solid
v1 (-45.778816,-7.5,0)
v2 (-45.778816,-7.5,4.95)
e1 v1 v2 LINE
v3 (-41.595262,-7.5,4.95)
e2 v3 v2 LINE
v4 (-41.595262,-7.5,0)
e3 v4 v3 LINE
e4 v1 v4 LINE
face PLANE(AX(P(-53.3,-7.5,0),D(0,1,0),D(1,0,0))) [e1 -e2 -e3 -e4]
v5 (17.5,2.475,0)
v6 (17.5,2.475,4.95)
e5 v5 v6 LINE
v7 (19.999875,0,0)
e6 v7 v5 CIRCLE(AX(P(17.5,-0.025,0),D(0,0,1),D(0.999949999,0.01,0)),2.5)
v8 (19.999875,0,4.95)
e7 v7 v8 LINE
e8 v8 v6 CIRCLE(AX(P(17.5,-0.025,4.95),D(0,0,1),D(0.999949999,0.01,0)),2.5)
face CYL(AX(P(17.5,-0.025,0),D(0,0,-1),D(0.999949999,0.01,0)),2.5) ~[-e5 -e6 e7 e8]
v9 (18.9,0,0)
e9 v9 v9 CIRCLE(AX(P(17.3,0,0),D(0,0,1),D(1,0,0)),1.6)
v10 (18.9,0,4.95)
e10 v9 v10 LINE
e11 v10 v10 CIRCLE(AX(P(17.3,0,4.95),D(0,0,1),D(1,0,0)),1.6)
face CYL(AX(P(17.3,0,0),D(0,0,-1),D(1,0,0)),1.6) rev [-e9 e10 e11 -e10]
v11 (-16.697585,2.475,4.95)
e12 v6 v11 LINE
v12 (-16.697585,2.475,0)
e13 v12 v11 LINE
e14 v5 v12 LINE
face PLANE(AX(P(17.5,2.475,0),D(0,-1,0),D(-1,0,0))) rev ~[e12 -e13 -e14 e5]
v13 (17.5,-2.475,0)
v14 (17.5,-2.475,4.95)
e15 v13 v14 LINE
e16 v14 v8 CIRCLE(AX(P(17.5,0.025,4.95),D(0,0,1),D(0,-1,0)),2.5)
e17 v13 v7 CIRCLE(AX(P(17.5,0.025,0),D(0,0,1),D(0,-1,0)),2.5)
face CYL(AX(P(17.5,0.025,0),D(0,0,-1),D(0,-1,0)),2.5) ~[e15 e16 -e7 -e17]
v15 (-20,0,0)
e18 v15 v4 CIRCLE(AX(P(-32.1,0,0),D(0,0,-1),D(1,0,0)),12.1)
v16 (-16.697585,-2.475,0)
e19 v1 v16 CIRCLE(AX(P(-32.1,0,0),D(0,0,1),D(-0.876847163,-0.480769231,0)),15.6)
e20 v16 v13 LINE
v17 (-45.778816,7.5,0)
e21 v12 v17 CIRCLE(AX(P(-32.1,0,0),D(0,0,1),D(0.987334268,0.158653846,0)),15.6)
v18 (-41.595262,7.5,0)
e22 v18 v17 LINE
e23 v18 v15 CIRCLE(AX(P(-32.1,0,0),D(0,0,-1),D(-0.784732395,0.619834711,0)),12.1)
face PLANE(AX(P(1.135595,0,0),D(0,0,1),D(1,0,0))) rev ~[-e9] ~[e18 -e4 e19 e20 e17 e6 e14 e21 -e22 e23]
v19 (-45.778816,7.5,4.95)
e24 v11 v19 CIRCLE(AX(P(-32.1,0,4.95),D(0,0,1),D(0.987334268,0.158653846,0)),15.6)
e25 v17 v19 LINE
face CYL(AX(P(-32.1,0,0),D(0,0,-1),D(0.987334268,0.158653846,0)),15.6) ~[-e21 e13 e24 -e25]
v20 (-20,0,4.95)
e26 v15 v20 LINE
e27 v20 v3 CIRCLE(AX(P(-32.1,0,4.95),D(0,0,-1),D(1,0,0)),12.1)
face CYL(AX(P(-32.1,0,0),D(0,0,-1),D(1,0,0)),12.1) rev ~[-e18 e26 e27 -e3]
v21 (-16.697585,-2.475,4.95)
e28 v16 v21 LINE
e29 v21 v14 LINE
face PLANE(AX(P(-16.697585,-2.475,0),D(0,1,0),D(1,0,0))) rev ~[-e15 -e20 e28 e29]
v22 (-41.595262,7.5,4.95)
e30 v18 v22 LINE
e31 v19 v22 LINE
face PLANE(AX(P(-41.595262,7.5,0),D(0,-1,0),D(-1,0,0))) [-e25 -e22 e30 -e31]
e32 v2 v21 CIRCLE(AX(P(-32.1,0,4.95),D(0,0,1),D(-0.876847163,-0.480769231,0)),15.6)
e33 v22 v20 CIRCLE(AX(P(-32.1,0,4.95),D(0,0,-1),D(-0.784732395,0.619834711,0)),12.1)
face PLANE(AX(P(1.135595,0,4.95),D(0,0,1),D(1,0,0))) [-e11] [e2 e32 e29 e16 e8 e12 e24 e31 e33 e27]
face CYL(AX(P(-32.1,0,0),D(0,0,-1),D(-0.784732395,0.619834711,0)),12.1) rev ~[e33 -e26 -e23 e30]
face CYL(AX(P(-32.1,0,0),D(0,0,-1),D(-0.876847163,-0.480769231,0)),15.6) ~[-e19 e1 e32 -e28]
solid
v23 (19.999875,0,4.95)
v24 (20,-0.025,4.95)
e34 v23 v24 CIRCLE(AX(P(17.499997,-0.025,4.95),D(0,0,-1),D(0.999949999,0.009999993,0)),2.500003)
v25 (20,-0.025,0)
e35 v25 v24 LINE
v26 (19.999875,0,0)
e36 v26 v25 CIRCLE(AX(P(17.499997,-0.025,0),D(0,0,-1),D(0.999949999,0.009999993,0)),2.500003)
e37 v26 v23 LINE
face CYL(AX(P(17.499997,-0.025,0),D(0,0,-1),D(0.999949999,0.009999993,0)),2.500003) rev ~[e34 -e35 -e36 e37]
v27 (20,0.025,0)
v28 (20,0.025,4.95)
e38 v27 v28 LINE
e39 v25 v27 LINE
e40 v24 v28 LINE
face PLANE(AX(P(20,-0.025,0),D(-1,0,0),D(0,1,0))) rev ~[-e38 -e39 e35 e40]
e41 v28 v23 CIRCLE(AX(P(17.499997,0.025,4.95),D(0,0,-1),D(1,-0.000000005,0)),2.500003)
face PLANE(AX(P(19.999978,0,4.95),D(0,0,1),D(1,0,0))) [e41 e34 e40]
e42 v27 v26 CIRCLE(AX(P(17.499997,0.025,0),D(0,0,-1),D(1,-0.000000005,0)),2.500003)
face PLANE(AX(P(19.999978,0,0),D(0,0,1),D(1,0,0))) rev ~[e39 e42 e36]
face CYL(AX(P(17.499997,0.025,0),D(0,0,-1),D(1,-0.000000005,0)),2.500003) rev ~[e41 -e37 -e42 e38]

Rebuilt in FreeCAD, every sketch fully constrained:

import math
import FreeCAD as App
import Part
import Sketcher

doc = App.newDocument("Part")
params = doc.addObject("Spreadsheet::Sheet", "Params")
for row, (alias, value) in enumerate([
    ("sketch1_height", "0.05 mm"),
    ("pad1_length", "4.95 mm"),
    ("sketch2_diameter", "3.2 mm"),
    ("sketch2_radius", "2.5 mm"),
    ("sketch2_radius2", "15.6 mm"),
    ("sketch2_radius3", "12.1 mm"),
    ("sketch2_height", "15 mm"),
    ("pad2_length", "4.95 mm"),
    ("sketch3_radius", "12.1 mm"),
    ("sketch3_height", "15 mm"),
    ("pocket1_length", "22 mm"),
], start=1):
    params.set(f"A{row}", alias)
    params.set(f"B{row}", "=" + value)
    params.setAlias(f"B{row}", alias)

body = doc.addObject("PartDesign::Body", "Body")

# Sketch on XY plane
sketch1 = body.newObject("Sketcher::SketchObject", "Sketch")
sketch1.AttachmentSupport = (doc.getObject("XY_Plane"), [""])
sketch1.MapMode = "FlatFace"
sketch1.addGeometry(Part.ArcOfCircle(Part.Circle(App.Vector(17.5, 0.025, 0), App.Vector(0, 0, 1), 2.5), math.radians(-0.57), math.radians(0)), False)
sketch1.addGeometry(Part.ArcOfCircle(Part.Circle(App.Vector(17.5, -0.025, 0), App.Vector(0, 0, 1), 2.5), math.radians(0), math.radians(0.57)), False)
sketch1.addGeometry(Part.LineSegment(App.Vector(20, -0.025, 0), App.Vector(20, 0.025, 0)), False)
sketch1.addConstraint(Sketcher.Constraint("Coincident", 0, 1, 1, 2))
sketch1.addConstraint(Sketcher.Constraint("Tangent", 1, 1, 2, 1))
sketch1.addConstraint(Sketcher.Constraint("Tangent", 2, 2, 0, 2))
sketch1.addConstraint(Sketcher.Constraint("Vertical", 2))
sketch1.addConstraint(Sketcher.Constraint("Equal", 0, 1))
sketch1.addConstraint(Sketcher.Constraint("PointOnObject", 0, 1, -1))
sketch1.addConstraint(Sketcher.Constraint("DistanceX", -1, 1, 1, 1, 20.0))
sketch1.addConstraint(Sketcher.Constraint("DistanceY", 2, 1, 2, 2, 0.05))
sketch1.addConstraint(Sketcher.Constraint("Radius", 0, 2.500003))
sketch1.setExpression("Constraints[7]", "Params.sketch1_height")
pad1 = body.newObject("PartDesign::Pad", "Pad")
pad1.Profile = sketch1
pad1.setExpression("Length", "Params.pad1_length")
body2 = doc.addObject("PartDesign::Body", "Body001")

# Sketch on XY plane
sketch2 = body2.newObject("Sketcher::SketchObject", "Sketch001")
sketch2.AttachmentSupport = (doc.getObject("XY_Plane001"), [""])
sketch2.MapMode = "FlatFace"
sketch2.addGeometry(Part.LineSegment(App.Vector(-16.697585, -2.475, 0), App.Vector(17.5, -2.475, 0)), False)
sketch2.addGeometry(Part.ArcOfCircle(Part.Circle(App.Vector(17.5, 0.025, 0), App.Vector(0, 0, 1), 2.5), math.radians(-90), math.radians(-0.572967)), False)
sketch2.addGeometry(Part.ArcOfCircle(Part.Circle(App.Vector(17.5, -0.025, 0), App.Vector(0, 0, 1), 2.5), math.radians(0.572967), math.radians(90)), False)
sketch2.addGeometry(Part.LineSegment(App.Vector(17.5, 2.475, 0), App.Vector(-16.697585, 2.475, 0)), False)
sketch2.addGeometry(Part.ArcOfCircle(Part.Circle(App.Vector(-32.1, 0, 0), App.Vector(0, 0, 1), 15.6), math.radians(9.128769), math.radians(151.264346)), False)
sketch2.addGeometry(Part.LineSegment(App.Vector(-45.778816, 7.5, 0), App.Vector(-53.3, 7.5, 0)), False)
sketch2.addGeometry(Part.LineSegment(App.Vector(-53.3, 7.5, 0), App.Vector(-53.3, -7.5, 0)), False)
sketch2.addGeometry(Part.LineSegment(App.Vector(-53.3, -7.5, 0), App.Vector(-45.778816, -7.5, 0)), False)
sketch2.addGeometry(Part.ArcOfCircle(Part.Circle(App.Vector(-32.1, 0, 0), App.Vector(0, 0, 1), 15.6), math.radians(-151.264346), math.radians(-9.128769)), False)
sketch2.addGeometry(Part.ArcOfCircle(Part.Circle(App.Vector(-32.1, 0, 0), App.Vector(0, 0, 1), 12.1), math.radians(-141.695935), math.radians(0)), False)
sketch2.addGeometry(Part.ArcOfCircle(Part.Circle(App.Vector(-32.1, 0, 0), App.Vector(0, 0, 1), 12.1), math.radians(141.695935), math.radians(218.304065)), False)
sketch2.addGeometry(Part.ArcOfCircle(Part.Circle(App.Vector(-32.1, 0, 0), App.Vector(0, 0, 1), 12.1), math.radians(0), math.radians(141.695935)), False)
sketch2.addGeometry(Part.Circle(App.Vector(17.3, 0, 0), App.Vector(0, 0, 1), 1.6), False)
sketch2.addConstraint(Sketcher.Constraint("Tangent", 0, 2, 1, 1))
sketch2.addConstraint(Sketcher.Constraint("Coincident", 1, 2, 2, 1))
sketch2.addConstraint(Sketcher.Constraint("Tangent", 2, 2, 3, 1))
sketch2.addConstraint(Sketcher.Constraint("Coincident", 3, 2, 4, 1))
sketch2.addConstraint(Sketcher.Constraint("Coincident", 4, 2, 5, 1))
sketch2.addConstraint(Sketcher.Constraint("Coincident", 5, 2, 6, 1))
sketch2.addConstraint(Sketcher.Constraint("Coincident", 6, 2, 7, 1))
sketch2.addConstraint(Sketcher.Constraint("Coincident", 7, 2, 8, 1))
sketch2.addConstraint(Sketcher.Constraint("Coincident", 8, 2, 0, 1))
sketch2.addConstraint(Sketcher.Constraint("Tangent", 9, 1, 10, 2))
sketch2.addConstraint(Sketcher.Constraint("Tangent", 10, 1, 11, 2))
sketch2.addConstraint(Sketcher.Constraint("Tangent", 11, 1, 9, 2))
sketch2.addConstraint(Sketcher.Constraint("Horizontal", 0))
sketch2.addConstraint(Sketcher.Constraint("Horizontal", 3))
sketch2.addConstraint(Sketcher.Constraint("Horizontal", 5))
sketch2.addConstraint(Sketcher.Constraint("Vertical", 6))
sketch2.addConstraint(Sketcher.Constraint("Horizontal", 7))
sketch2.addConstraint(Sketcher.Constraint("Coincident", 8, 3, 4, 3))
sketch2.addConstraint(Sketcher.Constraint("Coincident", 9, 3, 4, 3))
sketch2.addConstraint(Sketcher.Constraint("Equal", 1, 2))
sketch2.addConstraint(Sketcher.Constraint("Equal", 4, 8))
sketch2.addConstraint(Sketcher.Constraint("Symmetric", 1, 3, 2, 3, -1))
sketch2.addConstraint(Sketcher.Constraint("Symmetric", 4, 2, 7, 2, -1))
sketch2.addConstraint(Sketcher.Constraint("PointOnObject", 12, 3, -1))
sketch2.addConstraint(Sketcher.Constraint("PointOnObject", 11, 1, -1))
sketch2.addConstraint(Sketcher.Constraint("Horizontal", 7, 2, 9, 1))
sketch2.addConstraint(Sketcher.Constraint("Horizontal", 5, 2, 10, 1))
sketch2.addConstraint(Sketcher.Constraint("Diameter", 12, 3.2))
sketch2.addConstraint(Sketcher.Constraint("Radius", 1, 2.5))
sketch2.addConstraint(Sketcher.Constraint("Radius", 4, 15.6))
sketch2.addConstraint(Sketcher.Constraint("Radius", 9, 12.1))
sketch2.addConstraint(Sketcher.Constraint("DistanceY", 6, 2, 6, 1, 15.0))
sketch2.addConstraint(Sketcher.Constraint("DistanceX", 11, 1, -1, 1, 20.0))
sketch2.addConstraint(Sketcher.Constraint("DistanceX", -1, 1, 1, 3, 17.5))
sketch2.addConstraint(Sketcher.Constraint("DistanceX", -1, 1, 12, 3, 17.3))
sketch2.addConstraint(Sketcher.Constraint("DistanceX", 5, 2, -1, 1, 53.3))
sketch2.addConstraint(Sketcher.Constraint("DistanceY", 2, 3, 1, 3, 0.05))
sketch2.setExpression("Constraints[27]", "Params.sketch2_diameter")
sketch2.setExpression("Constraints[28]", "Params.sketch2_radius")
sketch2.setExpression("Constraints[29]", "Params.sketch2_radius2")
sketch2.setExpression("Constraints[30]", "Params.sketch2_radius3")
sketch2.setExpression("Constraints[31]", "Params.sketch2_height")
pad2 = body2.newObject("PartDesign::Pad", "Pad001")
pad2.Profile = sketch2
pad2.setExpression("Length", "Params.pad2_length")

# Sketch on XY plane
sketch3 = body2.newObject("Sketcher::SketchObject", "Sketch002")
sketch3.AttachmentSupport = (doc.getObject("XY_Plane001"), [""])
sketch3.MapMode = "FlatFace"
sketch3.addGeometry(Part.LineSegment(App.Vector(-53, -8, 0), App.Vector(-42, -8, 0)), False)
sketch3.addGeometry(Part.ArcOfCircle(Part.Circle(App.Vector(-32, 0, 0), App.Vector(0, 0, 1), 12), math.radians(-142), math.radians(0)), False)
sketch3.addGeometry(Part.ArcOfCircle(Part.Circle(App.Vector(-32, 0, 0), App.Vector(0, 0, 1), 12), math.radians(0), math.radians(142)), False)
sketch3.addGeometry(Part.LineSegment(App.Vector(-42, 8, 0), App.Vector(-53, 8, 0)), False)
sketch3.addGeometry(Part.LineSegment(App.Vector(-53, 8, 0), App.Vector(-53, -8, 0)), False)
sketch3.addConstraint(Sketcher.Constraint("Coincident", 0, 2, 1, 1))
sketch3.addConstraint(Sketcher.Constraint("Tangent", 1, 2, 2, 1))
sketch3.addConstraint(Sketcher.Constraint("Coincident", 2, 2, 3, 1))
sketch3.addConstraint(Sketcher.Constraint("Coincident", 3, 2, 4, 1))
sketch3.addConstraint(Sketcher.Constraint("Coincident", 4, 2, 0, 1))
sketch3.addConstraint(Sketcher.Constraint("Horizontal", 0))
sketch3.addConstraint(Sketcher.Constraint("Horizontal", 3))
sketch3.addConstraint(Sketcher.Constraint("Vertical", 4))
sketch3.addConstraint(Sketcher.Constraint("Equal", 1, 2))
sketch3.addConstraint(Sketcher.Constraint("Symmetric", 0, 2, 2, 2, -1))
sketch3.addConstraint(Sketcher.Constraint("PointOnObject", 1, 2, -1))
sketch3.addConstraint(Sketcher.Constraint("Radius", 1, 12.1))
sketch3.addConstraint(Sketcher.Constraint("DistanceY", 4, 2, 4, 1, 15.0))
sketch3.addConstraint(Sketcher.Constraint("DistanceX", 1, 2, -1, 1, 20.0))
sketch3.addConstraint(Sketcher.Constraint("DistanceX", 3, 2, -1, 1, 53.3))
sketch3.setExpression("Constraints[11]", "Params.sketch3_radius")
sketch3.setExpression("Constraints[12]", "Params.sketch3_height")
pocket1 = body2.newObject("PartDesign::Pocket", "Pocket")
pocket1.Profile = sketch3
pocket1.setExpression("Length", "Params.pocket1_length")
pocket1.Reversed = True

doc.recompute()
